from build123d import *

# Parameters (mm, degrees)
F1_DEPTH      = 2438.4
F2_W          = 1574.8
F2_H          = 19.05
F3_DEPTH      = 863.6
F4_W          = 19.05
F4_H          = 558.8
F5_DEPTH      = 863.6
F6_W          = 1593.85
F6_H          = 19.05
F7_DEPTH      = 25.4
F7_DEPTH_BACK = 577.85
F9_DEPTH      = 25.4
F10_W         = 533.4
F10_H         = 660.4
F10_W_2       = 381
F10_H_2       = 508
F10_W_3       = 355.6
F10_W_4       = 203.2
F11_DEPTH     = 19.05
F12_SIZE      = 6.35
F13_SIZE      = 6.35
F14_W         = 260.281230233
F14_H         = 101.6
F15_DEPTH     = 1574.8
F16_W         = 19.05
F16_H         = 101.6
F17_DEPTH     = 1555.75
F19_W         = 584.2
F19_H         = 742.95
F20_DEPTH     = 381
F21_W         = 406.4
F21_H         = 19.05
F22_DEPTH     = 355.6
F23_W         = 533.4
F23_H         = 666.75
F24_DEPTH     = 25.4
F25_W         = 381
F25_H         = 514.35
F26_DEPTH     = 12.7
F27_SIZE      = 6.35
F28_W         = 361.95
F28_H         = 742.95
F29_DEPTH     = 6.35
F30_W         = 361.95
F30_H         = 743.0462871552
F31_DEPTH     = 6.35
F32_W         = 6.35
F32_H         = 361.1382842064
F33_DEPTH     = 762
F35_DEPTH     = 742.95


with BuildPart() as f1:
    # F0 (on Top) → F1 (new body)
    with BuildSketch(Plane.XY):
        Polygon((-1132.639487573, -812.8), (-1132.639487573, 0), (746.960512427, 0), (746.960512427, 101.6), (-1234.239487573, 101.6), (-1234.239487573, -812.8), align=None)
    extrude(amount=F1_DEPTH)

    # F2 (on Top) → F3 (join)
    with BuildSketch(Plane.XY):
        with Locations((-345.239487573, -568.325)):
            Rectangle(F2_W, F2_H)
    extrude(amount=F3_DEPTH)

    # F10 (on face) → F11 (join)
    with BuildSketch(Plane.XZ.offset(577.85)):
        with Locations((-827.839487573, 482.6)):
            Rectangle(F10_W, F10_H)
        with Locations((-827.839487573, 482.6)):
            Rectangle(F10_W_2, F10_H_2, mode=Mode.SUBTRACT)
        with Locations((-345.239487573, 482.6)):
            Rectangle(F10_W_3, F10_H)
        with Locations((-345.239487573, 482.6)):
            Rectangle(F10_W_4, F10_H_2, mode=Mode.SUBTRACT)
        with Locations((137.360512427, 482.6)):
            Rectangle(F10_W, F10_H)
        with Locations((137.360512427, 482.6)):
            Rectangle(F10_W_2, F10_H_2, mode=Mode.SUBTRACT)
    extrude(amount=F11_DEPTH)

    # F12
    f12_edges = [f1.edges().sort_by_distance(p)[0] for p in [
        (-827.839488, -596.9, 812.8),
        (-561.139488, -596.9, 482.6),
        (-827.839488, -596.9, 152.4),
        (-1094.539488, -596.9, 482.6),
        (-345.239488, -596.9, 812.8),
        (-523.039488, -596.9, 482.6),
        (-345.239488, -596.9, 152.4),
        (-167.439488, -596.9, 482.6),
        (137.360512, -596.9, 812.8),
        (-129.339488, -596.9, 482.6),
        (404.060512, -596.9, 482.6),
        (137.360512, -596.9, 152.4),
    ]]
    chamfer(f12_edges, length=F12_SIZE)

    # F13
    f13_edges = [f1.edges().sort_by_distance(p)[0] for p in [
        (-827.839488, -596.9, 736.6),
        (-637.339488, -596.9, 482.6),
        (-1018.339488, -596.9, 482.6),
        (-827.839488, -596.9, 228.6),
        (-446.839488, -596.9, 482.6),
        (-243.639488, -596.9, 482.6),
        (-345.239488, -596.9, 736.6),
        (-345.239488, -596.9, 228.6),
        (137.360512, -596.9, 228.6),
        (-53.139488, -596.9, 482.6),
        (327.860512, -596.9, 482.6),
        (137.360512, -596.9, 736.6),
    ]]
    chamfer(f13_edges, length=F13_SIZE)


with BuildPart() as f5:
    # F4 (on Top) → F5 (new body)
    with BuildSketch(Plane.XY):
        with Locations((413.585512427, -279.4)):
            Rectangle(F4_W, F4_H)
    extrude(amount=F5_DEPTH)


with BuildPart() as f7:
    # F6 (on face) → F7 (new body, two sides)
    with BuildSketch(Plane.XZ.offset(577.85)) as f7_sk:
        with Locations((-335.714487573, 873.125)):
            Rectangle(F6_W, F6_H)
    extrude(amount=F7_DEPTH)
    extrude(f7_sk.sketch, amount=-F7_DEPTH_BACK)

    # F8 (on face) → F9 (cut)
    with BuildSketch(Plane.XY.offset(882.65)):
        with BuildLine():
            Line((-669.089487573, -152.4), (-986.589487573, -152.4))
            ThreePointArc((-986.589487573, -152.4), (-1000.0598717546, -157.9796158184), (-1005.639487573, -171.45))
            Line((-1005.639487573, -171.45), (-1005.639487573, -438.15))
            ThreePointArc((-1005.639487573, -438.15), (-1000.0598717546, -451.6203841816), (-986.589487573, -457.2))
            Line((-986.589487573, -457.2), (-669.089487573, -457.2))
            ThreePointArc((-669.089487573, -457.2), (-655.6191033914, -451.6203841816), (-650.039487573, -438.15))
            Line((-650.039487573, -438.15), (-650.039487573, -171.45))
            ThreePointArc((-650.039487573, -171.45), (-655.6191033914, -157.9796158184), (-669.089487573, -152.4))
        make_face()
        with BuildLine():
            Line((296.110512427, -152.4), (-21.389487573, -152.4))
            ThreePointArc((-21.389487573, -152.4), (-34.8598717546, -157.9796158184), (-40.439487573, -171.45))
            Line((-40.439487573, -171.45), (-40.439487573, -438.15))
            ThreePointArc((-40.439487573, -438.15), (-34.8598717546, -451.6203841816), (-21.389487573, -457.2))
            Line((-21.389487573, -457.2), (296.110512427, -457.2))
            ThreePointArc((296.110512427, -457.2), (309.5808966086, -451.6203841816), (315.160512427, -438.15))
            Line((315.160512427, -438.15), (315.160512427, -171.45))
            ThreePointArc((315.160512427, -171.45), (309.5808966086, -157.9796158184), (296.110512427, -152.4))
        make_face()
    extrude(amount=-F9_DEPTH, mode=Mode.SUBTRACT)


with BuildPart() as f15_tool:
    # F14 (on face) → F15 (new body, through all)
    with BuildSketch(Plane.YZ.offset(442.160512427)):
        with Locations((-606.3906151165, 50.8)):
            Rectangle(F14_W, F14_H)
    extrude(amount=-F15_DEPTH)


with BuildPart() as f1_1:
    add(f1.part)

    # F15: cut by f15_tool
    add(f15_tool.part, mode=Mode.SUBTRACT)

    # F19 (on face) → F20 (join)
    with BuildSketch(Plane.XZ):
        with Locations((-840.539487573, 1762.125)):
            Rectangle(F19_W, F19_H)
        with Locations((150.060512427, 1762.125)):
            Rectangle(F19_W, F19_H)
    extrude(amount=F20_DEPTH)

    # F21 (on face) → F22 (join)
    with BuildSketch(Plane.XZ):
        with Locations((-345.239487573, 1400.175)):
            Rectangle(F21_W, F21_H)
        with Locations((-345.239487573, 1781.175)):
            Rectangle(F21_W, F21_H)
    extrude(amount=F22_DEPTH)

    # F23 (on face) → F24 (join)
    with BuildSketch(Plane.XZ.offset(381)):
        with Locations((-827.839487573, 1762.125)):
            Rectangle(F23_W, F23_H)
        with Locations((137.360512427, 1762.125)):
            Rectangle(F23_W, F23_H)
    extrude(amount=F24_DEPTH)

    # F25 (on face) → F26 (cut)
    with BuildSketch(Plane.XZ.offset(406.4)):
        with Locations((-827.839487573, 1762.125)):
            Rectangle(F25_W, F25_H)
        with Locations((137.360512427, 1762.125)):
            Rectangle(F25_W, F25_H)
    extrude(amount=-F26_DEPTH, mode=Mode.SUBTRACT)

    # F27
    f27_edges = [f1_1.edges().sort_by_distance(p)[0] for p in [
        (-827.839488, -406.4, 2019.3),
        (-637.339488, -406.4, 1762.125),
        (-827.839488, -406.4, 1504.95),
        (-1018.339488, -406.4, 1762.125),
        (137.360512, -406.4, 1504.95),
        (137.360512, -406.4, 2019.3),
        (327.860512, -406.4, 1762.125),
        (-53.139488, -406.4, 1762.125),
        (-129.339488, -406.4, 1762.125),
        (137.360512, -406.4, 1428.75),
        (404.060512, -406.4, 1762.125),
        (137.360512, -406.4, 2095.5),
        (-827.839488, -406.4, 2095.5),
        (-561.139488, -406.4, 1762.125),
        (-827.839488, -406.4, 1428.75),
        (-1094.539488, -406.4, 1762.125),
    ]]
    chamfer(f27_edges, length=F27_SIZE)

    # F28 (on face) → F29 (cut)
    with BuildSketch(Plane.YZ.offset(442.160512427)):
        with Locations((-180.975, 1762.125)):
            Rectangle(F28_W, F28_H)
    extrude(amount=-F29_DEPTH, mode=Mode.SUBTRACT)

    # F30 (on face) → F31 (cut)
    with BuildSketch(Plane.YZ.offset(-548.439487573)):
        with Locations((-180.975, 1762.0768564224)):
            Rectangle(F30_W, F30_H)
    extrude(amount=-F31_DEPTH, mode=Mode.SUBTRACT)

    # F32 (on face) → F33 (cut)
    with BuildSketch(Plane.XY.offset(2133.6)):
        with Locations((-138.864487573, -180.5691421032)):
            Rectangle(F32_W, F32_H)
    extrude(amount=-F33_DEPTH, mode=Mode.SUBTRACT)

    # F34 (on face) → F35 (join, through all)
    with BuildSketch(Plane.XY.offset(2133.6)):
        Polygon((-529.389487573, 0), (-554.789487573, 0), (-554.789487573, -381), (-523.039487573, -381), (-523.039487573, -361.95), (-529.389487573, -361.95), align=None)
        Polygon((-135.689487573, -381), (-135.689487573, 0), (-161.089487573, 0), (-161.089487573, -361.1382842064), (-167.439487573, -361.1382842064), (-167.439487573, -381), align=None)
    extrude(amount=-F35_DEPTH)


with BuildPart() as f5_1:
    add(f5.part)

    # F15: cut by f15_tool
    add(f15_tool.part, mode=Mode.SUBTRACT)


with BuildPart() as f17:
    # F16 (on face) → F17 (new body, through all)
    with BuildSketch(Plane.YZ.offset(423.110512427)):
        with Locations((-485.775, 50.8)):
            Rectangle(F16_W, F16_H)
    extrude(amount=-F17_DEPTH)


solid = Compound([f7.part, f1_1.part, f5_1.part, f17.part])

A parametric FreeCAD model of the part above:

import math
import FreeCAD as App
import Part
import Sketcher
Q = App.Units.Quantity


def edges_at(feature, points):
    """Names of the edges that pass closest to the given points."""
    edges = feature.Shape.Edges
    near = lambda p: min(range(len(edges)), key=lambda i: edges[i].distToShape(Part.Vertex(*p))[0])
    return sorted({f"Edge{near(p) + 1}" for p in points})

doc = App.newDocument("Part")
body = doc.addObject("PartDesign::Body", "Body")

# Sketch on XY plane
sketch1 = body.newObject("Sketcher::SketchObject", "Sketch")
sketch1.AttachmentSupport = (doc.getObject("XY_Plane"), [""])
sketch1.MapMode = "FlatFace"
sketch1.addGeometry(Part.LineSegment(App.Vector(-1132.639488, -812.8, 0), App.Vector(-1132.639488, 0, 0)), False)
sketch1.addGeometry(Part.LineSegment(App.Vector(-1132.639488, 0, 0), App.Vector(746.960512, 0, 0)), False)
sketch1.addGeometry(Part.LineSegment(App.Vector(746.960512, 0, 0), App.Vector(746.960512, 101.6, 0)), False)
sketch1.addGeometry(Part.LineSegment(App.Vector(746.960512, 101.6, 0), App.Vector(-1234.239488, 101.6, 0)), False)
sketch1.addGeometry(Part.LineSegment(App.Vector(-1234.239488, 101.6, 0), App.Vector(-1234.239488, -812.8, 0)), False)
sketch1.addGeometry(Part.LineSegment(App.Vector(-1234.239488, -812.8, 0), App.Vector(-1132.639488, -812.8, 0)), False)
sketch1.addConstraint(Sketcher.Constraint("Coincident", 0, 2, 1, 1))
sketch1.addConstraint(Sketcher.Constraint("Coincident", 1, 2, 2, 1))
sketch1.addConstraint(Sketcher.Constraint("Coincident", 2, 2, 3, 1))
sketch1.addConstraint(Sketcher.Constraint("Coincident", 3, 2, 4, 1))
sketch1.addConstraint(Sketcher.Constraint("Coincident", 4, 2, 5, 1))
sketch1.addConstraint(Sketcher.Constraint("Coincident", 5, 2, 0, 1))
sketch1.addConstraint(Sketcher.Constraint("Vertical", 0))
sketch1.addConstraint(Sketcher.Constraint("Horizontal", 1))
sketch1.addConstraint(Sketcher.Constraint("Vertical", 2))
sketch1.addConstraint(Sketcher.Constraint("Horizontal", 3))
sketch1.addConstraint(Sketcher.Constraint("Vertical", 4))
sketch1.addConstraint(Sketcher.Constraint("Horizontal", 5))
sketch1.addConstraint(Sketcher.Constraint("PointOnObject", 0, 2, -1))
sketch1.addConstraint(Sketcher.Constraint("Equal", 5, 2))
sketch1.addConstraint(Sketcher.Constraint("DistanceX", 1, 1, 1, 2, Q("74 in")))
sketch1.addConstraint(Sketcher.Constraint("DistanceX", 3, 2, 3, 1, Q("78 in")))
sketch1.addConstraint(Sketcher.Constraint("DistanceY", 0, 1, 0, 2, Q("32 in")))
sketch1.addConstraint(Sketcher.Constraint("DistanceX", 0, 2, -1, 1, 1132.639488))
pad1 = body.newObject("PartDesign::Pad", "Pad")
pad1.Profile = sketch1
pad1.Length = Q("96 in")

# Sketch on XY plane
sketch2 = body.newObject("Sketcher::SketchObject", "Sketch001")
sketch2.AttachmentSupport = (doc.getObject("XY_Plane"), [""])
sketch2.MapMode = "FlatFace"
sketch2.addGeometry(Part.LineSegment(App.Vector(-1132.639488, -558.8, 0), App.Vector(-1132.639488, -577.85, 0)), False)
sketch2.addGeometry(Part.LineSegment(App.Vector(-1132.639488, -577.85, 0), App.Vector(442.160512, -577.85, 0)), False)
sketch2.addGeometry(Part.LineSegment(App.Vector(442.160512, -577.85, 0), App.Vector(442.160512, -558.8, 0)), False)
sketch2.addGeometry(Part.LineSegment(App.Vector(442.160512, -558.8, 0), App.Vector(-1132.639488, -558.8, 0)), False)
sketch2.addConstraint(Sketcher.Constraint("Coincident", 0, 2, 1, 1))
sketch2.addConstraint(Sketcher.Constraint("Coincident", 1, 2, 2, 1))
sketch2.addConstraint(Sketcher.Constraint("Coincident", 2, 2, 3, 1))
sketch2.addConstraint(Sketcher.Constraint("Coincident", 3, 2, 0, 1))
sketch2.addConstraint(Sketcher.Constraint("Vertical", 0))
sketch2.addConstraint(Sketcher.Constraint("Horizontal", 1))
sketch2.addConstraint(Sketcher.Constraint("Vertical", 2))
sketch2.addConstraint(Sketcher.Constraint("Horizontal", 3))
sketch2.addConstraint(Sketcher.Constraint("DistanceX", 1, 1, 1, 2, Q("62 in")))
sketch2.addConstraint(Sketcher.Constraint("DistanceY", 2, 2, -1, 1, Q("22 in")))
sketch2.addConstraint(Sketcher.Constraint("DistanceY", 0, 2, 0, 1, Q("0.75 in")))
sketch2.addConstraint(Sketcher.Constraint("DistanceX", 0, 2, -1, 1, 1132.639488))
pad2 = body.newObject("PartDesign::Pad", "Pad001")
pad2.Profile = sketch2
pad2.Length = Q("34 in")

# Sketch on XZ plane
sketch3 = body.newObject("Sketcher::SketchObject", "Sketch002")
sketch3.AttachmentSupport = (doc.getObject("XZ_Plane"), [""])
sketch3.MapMode = "FlatFace"
sketch3.AttachmentOffset = App.Placement(App.Vector(0, 0, 22.75 * 25.4), App.Rotation())
sketch3.addGeometry(Part.LineSegment(App.Vector(-1094.539488, 812.8, 0), App.Vector(-1094.539488, 152.4, 0)), False)
sketch3.addGeometry(Part.LineSegment(App.Vector(-1094.539488, 152.4, 0), App.Vector(-561.139488, 152.4, 0)), False)
sketch3.addGeometry(Part.LineSegment(App.Vector(-561.139488, 152.4, 0), App.Vector(-561.139488, 812.8, 0)), False)
sketch3.addGeometry(Part.LineSegment(App.Vector(-561.139488, 812.8, 0), App.Vector(-1094.539488, 812.8, 0)), False)
sketch3.addGeometry(Part.LineSegment(App.Vector(-637.339488, 228.6, 0), App.Vector(-1018.339488, 228.6, 0)), False)
sketch3.addGeometry(Part.LineSegment(App.Vector(-1018.339488, 228.6, 0), App.Vector(-1018.339488, 736.6, 0)), False)
sketch3.addGeometry(Part.LineSegment(App.Vector(-1018.339488, 736.6, 0), App.Vector(-637.339488, 736.6, 0)), False)
sketch3.addGeometry(Part.LineSegment(App.Vector(-637.339488, 736.6, 0), App.Vector(-637.339488, 228.6, 0)), False)
sketch3.addGeometry(Part.LineSegment(App.Vector(-523.039488, 812.8, 0), App.Vector(-523.039488, 152.4, 0)), False)
sketch3.addGeometry(Part.LineSegment(App.Vector(-523.039488, 152.4, 0), App.Vector(-167.439488, 152.4, 0)), False)
sketch3.addGeometry(Part.LineSegment(App.Vector(-167.439488, 152.4, 0), App.Vector(-167.439488, 812.8, 0)), False)
sketch3.addGeometry(Part.LineSegment(App.Vector(-167.439488, 812.8, 0), App.Vector(-523.039488, 812.8, 0)), False)
sketch3.addGeometry(Part.LineSegment(App.Vector(-243.639488, 228.6, 0), App.Vector(-446.839488, 228.6, 0)), False)
sketch3.addGeometry(Part.LineSegment(App.Vector(-446.839488, 228.6, 0), App.Vector(-446.839488, 736.6, 0)), False)
sketch3.addGeometry(Part.LineSegment(App.Vector(-446.839488, 736.6, 0), App.Vector(-243.639488, 736.6, 0)), False)
sketch3.addGeometry(Part.LineSegment(App.Vector(-243.639488, 736.6, 0), App.Vector(-243.639488, 228.6, 0)), False)
sketch3.addGeometry(Part.LineSegment(App.Vector(-129.339488, 812.8, 0), App.Vector(-129.339488, 152.4, 0)), False)
sketch3.addGeometry(Part.LineSegment(App.Vector(-129.339488, 152.4, 0), App.Vector(404.060512, 152.4, 0)), False)
sketch3.addGeometry(Part.LineSegment(App.Vector(404.060512, 152.4, 0), App.Vector(404.060512, 812.8, 0)), False)
sketch3.addGeometry(Part.LineSegment(App.Vector(404.060512, 812.8, 0), App.Vector(-129.339488, 812.8, 0)), False)
sketch3.addGeometry(Part.LineSegment(App.Vector(327.860512, 228.6, 0), App.Vector(-53.139488, 228.6, 0)), False)
sketch3.addGeometry(Part.LineSegment(App.Vector(-53.139488, 228.6, 0), App.Vector(-53.139488, 736.6, 0)), False)
sketch3.addGeometry(Part.LineSegment(App.Vector(-53.139488, 736.6, 0), App.Vector(327.860512, 736.6, 0)), False)
sketch3.addGeometry(Part.LineSegment(App.Vector(327.860512, 736.6, 0), App.Vector(327.860512, 228.6, 0)), False)
sketch3.addConstraint(Sketcher.Constraint("Coincident", 0, 2, 1, 1))
sketch3.addConstraint(Sketcher.Constraint("Coincident", 1, 2, 2, 1))
sketch3.addConstraint(Sketcher.Constraint("Coincident", 2, 2, 3, 1))
sketch3.addConstraint(Sketcher.Constraint("Coincident", 3, 2, 0, 1))
sketch3.addConstraint(Sketcher.Constraint("Coincident", 4, 2, 5, 1))
sketch3.addConstraint(Sketcher.Constraint("Coincident", 5, 2, 6, 1))
sketch3.addConstraint(Sketcher.Constraint("Coincident", 6, 2, 7, 1))
sketch3.addConstraint(Sketcher.Constraint("Coincident", 7, 2, 4, 1))
sketch3.addConstraint(Sketcher.Constraint("Coincident", 8, 2, 9, 1))
sketch3.addConstraint(Sketcher.Constraint("Coincident", 9, 2, 10, 1))
sketch3.addConstraint(Sketcher.Constraint("Coincident", 10, 2, 11, 1))
sketch3.addConstraint(Sketcher.Constraint("Coincident", 11, 2, 8, 1))
sketch3.addConstraint(Sketcher.Constraint("Coincident", 12, 2, 13, 1))
sketch3.addConstraint(Sketcher.Constraint("Coincident", 13, 2, 14, 1))
sketch3.addConstraint(Sketcher.Constraint("Coincident", 14, 2, 15, 1))
sketch3.addConstraint(Sketcher.Constraint("Coincident", 15, 2, 12, 1))
sketch3.addConstraint(Sketcher.Constraint("Coincident", 16, 2, 17, 1))
sketch3.addConstraint(Sketcher.Constraint("Coincident", 17, 2, 18, 1))
sketch3.addConstraint(Sketcher.Constraint("Coincident", 18, 2, 19, 1))
sketch3.addConstraint(Sketcher.Constraint("Coincident", 19, 2, 16, 1))
sketch3.addConstraint(Sketcher.Constraint("Coincident", 20, 2, 21, 1))
sketch3.addConstraint(Sketcher.Constraint("Coincident", 21, 2, 22, 1))
sketch3.addConstraint(Sketcher.Constraint("Coincident", 22, 2, 23, 1))
sketch3.addConstraint(Sketcher.Constraint("Coincident", 23, 2, 20, 1))
sketch3.addConstraint(Sketcher.Constraint("Vertical", 0))
sketch3.addConstraint(Sketcher.Constraint("Horizontal", 1))
sketch3.addConstraint(Sketcher.Constraint("Vertical", 2))
sketch3.addConstraint(Sketcher.Constraint("Horizontal", 3))
sketch3.addConstraint(Sketcher.Constraint("Horizontal", 4))
sketch3.addConstraint(Sketcher.Constraint("Vertical", 5))
sketch3.addConstraint(Sketcher.Constraint("Horizontal", 6))
sketch3.addConstraint(Sketcher.Constraint("Vertical", 7))
sketch3.addConstraint(Sketcher.Constraint("Vertical", 8))
sketch3.addConstraint(Sketcher.Constraint("Horizontal", 9))
sketch3.addConstraint(Sketcher.Constraint("Vertical", 10))
sketch3.addConstraint(Sketcher.Constraint("Horizontal", 11))
sketch3.addConstraint(Sketcher.Constraint("Horizontal", 12))
sketch3.addConstraint(Sketcher.Constraint("Vertical", 13))
sketch3.addConstraint(Sketcher.Constraint("Horizontal", 14))
sketch3.addConstraint(Sketcher.Constraint("Vertical", 15))
sketch3.addConstraint(Sketcher.Constraint("Vertical", 16))
sketch3.addConstraint(Sketcher.Constraint("Horizontal", 17))
sketch3.addConstraint(Sketcher.Constraint("Vertical", 18))
sketch3.addConstraint(Sketcher.Constraint("Horizontal", 19))
sketch3.addConstraint(Sketcher.Constraint("Horizontal", 20))
sketch3.addConstraint(Sketcher.Constraint("Vertical", 21))
sketch3.addConstraint(Sketcher.Constraint("Horizontal", 22))
sketch3.addConstraint(Sketcher.Constraint("Vertical", 23))
sketch3.addConstraint(Sketcher.Constraint("Horizontal", 1, 2, 8, 2))
sketch3.addConstraint(Sketcher.Constraint("Horizontal", 3, 2, 10, 2))
sketch3.addConstraint(Sketcher.Constraint("Horizontal", 7, 2, 12, 2))
sketch3.addConstraint(Sketcher.Constraint("Horizontal", 6, 2, 13, 2))
sketch3.addConstraint(Sketcher.Constraint("Horizontal", 9, 2, 16, 2))
sketch3.addConstraint(Sketcher.Constraint("Horizontal", 11, 2, 18, 2))
sketch3.addConstraint(Sketcher.Constraint("Horizontal", 15, 2, 20, 2))
sketch3.addConstraint(Sketcher.Constraint("Horizontal", 14, 2, 21, 2))
sketch3.addConstraint(Sketcher.Constraint("Equal", 3, 17))
sketch3.addConstraint(Sketcher.Constraint("Equal", 6, 20))
sketch3.addConstraint(Sketcher.Constraint("DistanceX", 1, 1, 1, 2, Q("21 in")))
sketch3.addConstraint(Sketcher.Constraint("DistanceX", 4, 2, 4, 1, Q("15 in")))
sketch3.addConstraint(Sketcher.Constraint("DistanceX", 9, 1, 9, 2, Q("14 in")))
sketch3.addConstraint(Sketcher.Constraint("DistanceX", 12, 2, 12, 1, Q("8 in")))
sketch3.addConstraint(Sketcher.Constraint("DistanceY", 0, 2, 0, 1, Q("26 in")))
sketch3.addConstraint(Sketcher.Constraint("DistanceY", 5, 1, 5, 2, Q("20 in")))
sketch3.addConstraint(Sketcher.Constraint("DistanceY", -1, 1, 0, 2, Q("6 in")))
sketch3.addConstraint(Sketcher.Constraint("DistanceY", -1, 1, 4, 2, Q("9 in")))
sketch3.addConstraint(Sketcher.Constraint("DistanceX", 0, 2, 4, 2, Q("3 in")))
sketch3.addConstraint(Sketcher.Constraint("DistanceX", 8, 2, 12, 2, Q("3 in")))
sketch3.addConstraint(Sketcher.Constraint("DistanceX", 1, 2, 16, 2, Q("17 in")))
sketch3.addConstraint(Sketcher.Constraint("DistanceX", 16, 2, 20, 2, Q("3 in")))
sketch3.addConstraint(Sketcher.Constraint("DistanceX", 1, 2, 8, 2, Q("1.5 in")))
sketch3.addConstraint(Sketcher.Constraint("DistanceX", 0, 2, -1, 1, 1094.539488))
pad3 = body.newObject("PartDesign::Pad", "Pad002")
pad3.Profile = sketch3
pad3.Length = Q("0.75 in")
doc.recompute()

chamfer = body.newObject("PartDesign::Chamfer", "Chamfer")
chamfer.Base = (pad3, edges_at(pad3, [
    (-827.839, -596.9, 812.8),
    (-561.139, -596.9, 482.6),
    (-827.839, -596.9, 152.4),
    (-1094.539, -596.9, 482.6),
    (-345.239, -596.9, 812.8),
    (-523.039, -596.9, 482.6),
    (-345.239, -596.9, 152.4),
    (-167.439, -596.9, 482.6),
    (137.361, -596.9, 812.8),
    (-129.339, -596.9, 482.6),
    (404.061, -596.9, 482.6),
    (137.361, -596.9, 152.4),
]))
chamfer.Size = Q("0.25 in")
doc.recompute()

chamfer2 = body.newObject("PartDesign::Chamfer", "Chamfer001")
chamfer2.Base = (chamfer, edges_at(chamfer, [
    (-827.839, -596.9, 736.6),
    (-637.339, -596.9, 482.6),
    (-1018.339, -596.9, 482.6),
    (-827.839, -596.9, 228.6),
    (-446.839, -596.9, 482.6),
    (-243.639, -596.9, 482.6),
    (-345.239, -596.9, 736.6),
    (-345.239, -596.9, 228.6),
    (137.361, -596.9, 228.6),
    (-53.139, -596.9, 482.6),
    (327.861, -596.9, 482.6),
    (137.361, -596.9, 736.6),
]))
chamfer2.Size = Q("0.25 in")
body2 = doc.addObject("PartDesign::Body", "Body001")

# Sketch on XY plane
sketch4 = body2.newObject("Sketcher::SketchObject", "Sketch003")
sketch4.AttachmentSupport = (doc.getObject("XY_Plane001"), [""])
sketch4.MapMode = "FlatFace"
sketch4.addGeometry(Part.LineSegment(App.Vector(404.060512, 0, 0), App.Vector(404.060512, -558.8, 0)), False)
sketch4.addGeometry(Part.LineSegment(App.Vector(404.060512, -558.8, 0), App.Vector(423.110512, -558.8, 0)), False)
sketch4.addGeometry(Part.LineSegment(App.Vector(423.110512, -558.8, 0), App.Vector(423.110512, 0, 0)), False)
sketch4.addGeometry(Part.LineSegment(App.Vector(423.110512, 0, 0), App.Vector(404.060512, 0, 0)), False)
sketch4.addConstraint(Sketcher.Constraint("Coincident", 0, 2, 1, 1))
sketch4.addConstraint(Sketcher.Constraint("Coincident", 1, 2, 2, 1))
sketch4.addConstraint(Sketcher.Constraint("Coincident", 2, 2, 3, 1))
sketch4.addConstraint(Sketcher.Constraint("Coincident", 3, 2, 0, 1))
sketch4.addConstraint(Sketcher.Constraint("Vertical", 0))
sketch4.addConstraint(Sketcher.Constraint("Horizontal", 1))
sketch4.addConstraint(Sketcher.Constraint("Vertical", 2))
sketch4.addConstraint(Sketcher.Constraint("Horizontal", 3))
sketch4.addConstraint(Sketcher.Constraint("PointOnObject", 2, 2, -1))
sketch4.addConstraint(Sketcher.Constraint("DistanceY", 0, 2, 0, 1, Q("22 in")))
sketch4.addConstraint(Sketcher.Constraint("DistanceX", 1, 1, 1, 2, Q("0.75 in")))
sketch4.addConstraint(Sketcher.Constraint("DistanceX", -1, 1, 0, 2, 404.060512))
pad4 = body2.newObject("PartDesign::Pad", "Pad003")
pad4.Profile = sketch4
pad4.Length = Q("34 in")
body3 = doc.addObject("PartDesign::Body", "Body002")

# Sketch on XZ plane
sketch5 = body3.newObject("Sketcher::SketchObject", "Sketch004")
sketch5.AttachmentSupport = (doc.getObject("XZ_Plane002"), [""])
sketch5.MapMode = "FlatFace"
sketch5.AttachmentOffset = App.Placement(App.Vector(0, 0, 22.75 * 25.4), App.Rotation())
sketch5.addGeometry(Part.LineSegment(App.Vector(-1132.639488, 882.65, 0), App.Vector(-1132.639488, 863.6, 0)), False)
sketch5.addGeometry(Part.LineSegment(App.Vector(-1132.639488, 863.6, 0), App.Vector(461.210512, 863.6, 0)), False)
sketch5.addGeometry(Part.LineSegment(App.Vector(461.210512, 863.6, 0), App.Vector(461.210512, 882.65, 0)), False)
sketch5.addGeometry(Part.LineSegment(App.Vector(461.210512, 882.65, 0), App.Vector(-1132.639488, 882.65, 0)), False)
sketch5.addConstraint(Sketcher.Constraint("Coincident", 0, 2, 1, 1))
sketch5.addConstraint(Sketcher.Constraint("Coincident", 1, 2, 2, 1))
sketch5.addConstraint(Sketcher.Constraint("Coincident", 2, 2, 3, 1))
sketch5.addConstraint(Sketcher.Constraint("Coincident", 3, 2, 0, 1))
sketch5.addConstraint(Sketcher.Constraint("Vertical", 0))
sketch5.addConstraint(Sketcher.Constraint("Horizontal", 1))
sketch5.addConstraint(Sketcher.Constraint("Vertical", 2))
sketch5.addConstraint(Sketcher.Constraint("Horizontal", 3))
sketch5.addConstraint(Sketcher.Constraint("DistanceY", -1, 1, 0, 2, Q("34 in")))
sketch5.addConstraint(Sketcher.Constraint("DistanceX", 1, 1, 1, 2, Q("62.75 in")))
sketch5.addConstraint(Sketcher.Constraint("DistanceY", 0, 2, 0, 1, Q("0.75 in")))
sketch5.addConstraint(Sketcher.Constraint("DistanceX", 0, 2, -1, 1, 1132.639488))
pad5 = body3.newObject("PartDesign::Pad", "Pad004")
pad5.Profile = sketch5
pad5.Type = "TwoLengths"
pad5.Length = Q("1 in")
pad5.Length2 = Q("22.75 in")

# Sketch on XY plane
sketch6 = body3.newObject("Sketcher::SketchObject", "Sketch005")
sketch6.AttachmentSupport = (doc.getObject("XY_Plane002"), [""])
sketch6.MapMode = "FlatFace"
sketch6.AttachmentOffset = App.Placement(App.Vector(0, 0, 34.75 * 25.4), App.Rotation())
sketch6.addGeometry(Part.LineSegment(App.Vector(-669.089488, -152.4, 0), App.Vector(-986.589488, -152.4, 0)), False)
sketch6.addGeometry(Part.ArcOfCircle(Part.Circle(App.Vector(-986.589488, -171.45, 0), App.Vector(0, 0, 1), 19.05), math.radians(90), math.radians(180)), False)
sketch6.addGeometry(Part.LineSegment(App.Vector(-1005.639488, -171.45, 0), App.Vector(-1005.639488, -438.15, 0)), False)
sketch6.addGeometry(Part.ArcOfCircle(Part.Circle(App.Vector(-986.589488, -438.15, 0), App.Vector(0, 0, 1), 19.05), math.radians(180), math.radians(270)), False)
sketch6.addGeometry(Part.LineSegment(App.Vector(-986.589488, -457.2, 0), App.Vector(-669.089488, -457.2, 0)), False)
sketch6.addGeometry(Part.ArcOfCircle(Part.Circle(App.Vector(-669.089488, -438.15, 0), App.Vector(0, 0, 1), 19.05), math.radians(-90), math.radians(0)), False)
sketch6.addGeometry(Part.LineSegment(App.Vector(-650.039488, -438.15, 0), App.Vector(-650.039488, -171.45, 0)), False)
sketch6.addGeometry(Part.ArcOfCircle(Part.Circle(App.Vector(-669.089488, -171.45, 0), App.Vector(0, 0, 1), 19.05), math.radians(0), math.radians(90)), False)
sketch6.addGeometry(Part.LineSegment(App.Vector(296.110512, -152.4, 0), App.Vector(-21.389488, -152.4, 0)), False)
sketch6.addGeometry(Part.ArcOfCircle(Part.Circle(App.Vector(-21.389488, -171.45, 0), App.Vector(0, 0, 1), 19.05), math.radians(90), math.radians(180)), False)
sketch6.addGeometry(Part.LineSegment(App.Vector(-40.439488, -171.45, 0), App.Vector(-40.439488, -438.15, 0)), False)
sketch6.addGeometry(Part.ArcOfCircle(Part.Circle(App.Vector(-21.389488, -438.15, 0), App.Vector(0, 0, 1), 19.05), math.radians(180), math.radians(270)), False)
sketch6.addGeometry(Part.LineSegment(App.Vector(-21.389488, -457.2, 0), App.Vector(296.110512, -457.2, 0)), False)
sketch6.addGeometry(Part.ArcOfCircle(Part.Circle(App.Vector(296.110512, -438.15, 0), App.Vector(0, 0, 1), 19.05), math.radians(-90), math.radians(0)), False)
sketch6.addGeometry(Part.LineSegment(App.Vector(315.160512, -438.15, 0), App.Vector(315.160512, -171.45, 0)), False)
sketch6.addGeometry(Part.ArcOfCircle(Part.Circle(App.Vector(296.110512, -171.45, 0), App.Vector(0, 0, 1), 19.05), math.radians(0), math.radians(90)), False)
sketch6.addConstraint(Sketcher.Constraint("Tangent", 0, 2, 1, 1))
sketch6.addConstraint(Sketcher.Constraint("Tangent", 1, 2, 2, 1))
sketch6.addConstraint(Sketcher.Constraint("Tangent", 2, 2, 3, 1))
sketch6.addConstraint(Sketcher.Constraint("Tangent", 3, 2, 4, 1))
sketch6.addConstraint(Sketcher.Constraint("Tangent", 4, 2, 5, 1))
sketch6.addConstraint(Sketcher.Constraint("Tangent", 5, 2, 6, 1))
sketch6.addConstraint(Sketcher.Constraint("Tangent", 6, 2, 7, 1))
sketch6.addConstraint(Sketcher.Constraint("Tangent", 7, 2, 0, 1))
sketch6.addConstraint(Sketcher.Constraint("Tangent", 8, 2, 9, 1))
sketch6.addConstraint(Sketcher.Constraint("Tangent", 9, 2, 10, 1))
sketch6.addConstraint(Sketcher.Constraint("Tangent", 10, 2, 11, 1))
sketch6.addConstraint(Sketcher.Constraint("Tangent", 11, 2, 12, 1))
sketch6.addConstraint(Sketcher.Constraint("Tangent", 12, 2, 13, 1))
sketch6.addConstraint(Sketcher.Constraint("Tangent", 13, 2, 14, 1))
sketch6.addConstraint(Sketcher.Constraint("Tangent", 14, 2, 15, 1))
sketch6.addConstraint(Sketcher.Constraint("Tangent", 15, 2, 8, 1))
sketch6.addConstraint(Sketcher.Constraint("Horizontal", 0))
sketch6.addConstraint(Sketcher.Constraint("Vertical", 2))
sketch6.addConstraint(Sketcher.Constraint("Horizontal", 4))
sketch6.addConstraint(Sketcher.Constraint("Vertical", 6))
sketch6.addConstraint(Sketcher.Constraint("Horizontal", 8))
sketch6.addConstraint(Sketcher.Constraint("Vertical", 10))
sketch6.addConstraint(Sketcher.Constraint("Horizontal", 12))
sketch6.addConstraint(Sketcher.Constraint("Vertical", 14))
sketch6.addConstraint(Sketcher.Constraint("Equal", 1, 3))
sketch6.addConstraint(Sketcher.Constraint("Equal", 3, 5))
sketch6.addConstraint(Sketcher.Constraint("Equal", 5, 7))
sketch6.addConstraint(Sketcher.Constraint("Equal", 7, 9))
sketch6.addConstraint(Sketcher.Constraint("Equal", 9, 11))
sketch6.addConstraint(Sketcher.Constraint("Equal", 11, 13))
sketch6.addConstraint(Sketcher.Constraint("Equal", 13, 15))
sketch6.addConstraint(Sketcher.Constraint("Horizontal", 7, 3, 9, 3))
sketch6.addConstraint(Sketcher.Constraint("Horizontal", 5, 3, 11, 3))
sketch6.addConstraint(Sketcher.Constraint("Equal", 4, 8))
sketch6.addConstraint(Sketcher.Constraint("Radius", 1, Q("0.75 in")))
sketch6.addConstraint(Sketcher.Constraint("DistanceX", 0, 2, 0, 1, Q("12.5 in")))
sketch6.addConstraint(Sketcher.Constraint("DistanceY", 2, 2, 2, 1, Q("10.5 in")))
sketch6.addConstraint(Sketcher.Constraint("DistanceY", 0, 2, -1, 1, Q("6 in")))
sketch6.addConstraint(Sketcher.Constraint("DistanceX", 1, 3, 9, 3, Q("38 in")))
sketch6.addConstraint(Sketcher.Constraint("DistanceX", 1, 3, -1, 1, 986.589488))
pocket1 = body3.newObject("PartDesign::Pocket", "Pocket")
pocket1.Profile = sketch6
pocket1.Length = Q("1 in")
body4 = doc.addObject("PartDesign::Body", "Body003")

# Sketch on YZ plane
sketch7 = body4.newObject("Sketcher::SketchObject", "Sketch006")
sketch7.AttachmentSupport = (doc.getObject("YZ_Plane003"), [""])
sketch7.MapMode = "FlatFace"
sketch7.AttachmentOffset = App.Placement(App.Vector(0, 0, 442.160512), App.Rotation())
sketch7.addGeometry(Part.LineSegment(App.Vector(-736.53123, 101.6, 0), App.Vector(-736.53123, 0, 0)), False)
sketch7.addGeometry(Part.LineSegment(App.Vector(-736.53123, 0, 0), App.Vector(-476.25, 0, 0)), False)
sketch7.addGeometry(Part.LineSegment(App.Vector(-476.25, 0, 0), App.Vector(-476.25, 101.6, 0)), False)
sketch7.addGeometry(Part.LineSegment(App.Vector(-476.25, 101.6, 0), App.Vector(-736.53123, 101.6, 0)), False)
sketch7.addConstraint(Sketcher.Constraint("Coincident", 0, 2, 1, 1))
sketch7.addConstraint(Sketcher.Constraint("Coincident", 1, 2, 2, 1))
sketch7.addConstraint(Sketcher.Constraint("Coincident", 2, 2, 3, 1))
sketch7.addConstraint(Sketcher.Constraint("Coincident", 3, 2, 0, 1))
sketch7.addConstraint(Sketcher.Constraint("Vertical", 0))
sketch7.addConstraint(Sketcher.Constraint("Horizontal", 1))
sketch7.addConstraint(Sketcher.Constraint("Vertical", 2))
sketch7.addConstraint(Sketcher.Constraint("Horizontal", 3))
sketch7.addConstraint(Sketcher.Constraint("PointOnObject", 0, 2, -1))
sketch7.addConstraint(Sketcher.Constraint("DistanceY", 0, 2, 0, 1, Q("4 in")))
sketch7.addConstraint(Sketcher.Constraint("DistanceX", 1, 2, -1, 1, Q("18.75 in")))
sketch7.addConstraint(Sketcher.Constraint("DistanceX", 1, 1, 1, 2, 260.28123))
pad6 = body4.newObject("PartDesign::Pad", "Pad005")
pad6.Profile = sketch7
pad6.Length = Q("62 in")
pad6.Reversed = True
doc.recompute()

body5 = doc.addObject("PartDesign::Body", "Body004")
body5.BaseFeature = body4
boolean = body.newObject("PartDesign::Boolean", "Boolean")
boolean.Type = "Cut"
boolean.addObjects([body5])
doc.recompute()

# Sketch on XZ plane
sketch8 = body.newObject("Sketcher::SketchObject", "Sketch007")
sketch8.AttachmentSupport = (doc.getObject("XZ_Plane"), [""])
sketch8.MapMode = "FlatFace"
sketch8.addGeometry(Part.LineSegment(App.Vector(-1132.639488, 2133.6, 0), App.Vector(-1132.639488, 1390.65, 0)), False)
sketch8.addGeometry(Part.LineSegment(App.Vector(-1132.639488, 1390.65, 0), App.Vector(-548.439488, 1390.65, 0)), False)
sketch8.addGeometry(Part.LineSegment(App.Vector(-548.439488, 1390.65, 0), App.Vector(-548.439488, 2133.6, 0)), False)
sketch8.addGeometry(Part.LineSegment(App.Vector(-548.439488, 2133.6, 0), App.Vector(-1132.639488, 2133.6, 0)), False)
sketch8.addGeometry(Part.LineSegment(App.Vector(-142.039488, 2133.6, 0), App.Vector(-142.039488, 1390.65, 0)), False)
sketch8.addGeometry(Part.LineSegment(App.Vector(-142.039488, 1390.65, 0), App.Vector(442.160512, 1390.65, 0)), False)
sketch8.addGeometry(Part.LineSegment(App.Vector(442.160512, 1390.65, 0), App.Vector(442.160512, 2133.6, 0)), False)
sketch8.addGeometry(Part.LineSegment(App.Vector(442.160512, 2133.6, 0), App.Vector(-142.039488, 2133.6, 0)), False)
sketch8.addConstraint(Sketcher.Constraint("Coincident", 0, 2, 1, 1))
sketch8.addConstraint(Sketcher.Constraint("Coincident", 1, 2, 2, 1))
sketch8.addConstraint(Sketcher.Constraint("Coincident", 2, 2, 3, 1))
sketch8.addConstraint(Sketcher.Constraint("Coincident", 3, 2, 0, 1))
sketch8.addConstraint(Sketcher.Constraint("Coincident", 4, 2, 5, 1))
sketch8.addConstraint(Sketcher.Constraint("Coincident", 5, 2, 6, 1))
sketch8.addConstraint(Sketcher.Constraint("Coincident", 6, 2, 7, 1))
sketch8.addConstraint(Sketcher.Constraint("Coincident", 7, 2, 4, 1))
sketch8.addConstraint(Sketcher.Constraint("Vertical", 0))
sketch8.addConstraint(Sketcher.Constraint("Horizontal", 1))
sketch8.addConstraint(Sketcher.Constraint("Vertical", 2))
sketch8.addConstraint(Sketcher.Constraint("Horizontal", 3))
sketch8.addConstraint(Sketcher.Constraint("Vertical", 4))
sketch8.addConstraint(Sketcher.Constraint("Horizontal", 5))
sketch8.addConstraint(Sketcher.Constraint("Vertical", 6))
sketch8.addConstraint(Sketcher.Constraint("Horizontal", 7))
sketch8.addConstraint(Sketcher.Constraint("Horizontal", 1, 2, 4, 2))
sketch8.addConstraint(Sketcher.Constraint("Horizontal", 3, 2, 6, 2))
sketch8.addConstraint(Sketcher.Constraint("Equal", 3, 5))
sketch8.addConstraint(Sketcher.Constraint("DistanceX", 1, 1, 1, 2, Q("23 in")))
sketch8.addConstraint(Sketcher.Constraint("DistanceY", -1, 1, 2, 2, Q("84 in")))
sketch8.addConstraint(Sketcher.Constraint("DistanceX", 1, 2, 4, 2, Q("16 in")))
sketch8.addConstraint(Sketcher.Constraint("DistanceY", 0, 2, 0, 1, Q("29.25 in")))
sketch8.addConstraint(Sketcher.Constraint("DistanceX", 0, 2, -1, 1, 1132.639488))
pad7 = body.newObject("PartDesign::Pad", "Pad006")
pad7.Profile = sketch8
pad7.Length = Q("15 in")

# Sketch on XZ plane
sketch9 = body.newObject("Sketcher::SketchObject", "Sketch008")
sketch9.AttachmentSupport = (doc.getObject("XZ_Plane"), [""])
sketch9.MapMode = "FlatFace"
sketch9.addGeometry(Part.LineSegment(App.Vector(-548.439488, 1409.7, 0), App.Vector(-548.439488, 1390.65, 0)), False)
sketch9.addGeometry(Part.LineSegment(App.Vector(-548.439488, 1390.65, 0), App.Vector(-142.039488, 1390.65, 0)), False)
sketch9.addGeometry(Part.LineSegment(App.Vector(-142.039488, 1390.65, 0), App.Vector(-142.039488, 1409.7, 0)), False)
sketch9.addGeometry(Part.LineSegment(App.Vector(-142.039488, 1409.7, 0), App.Vector(-548.439488, 1409.7, 0)), False)
sketch9.addGeometry(Part.LineSegment(App.Vector(-548.439488, 1790.7, 0), App.Vector(-548.439488, 1771.65, 0)), False)
sketch9.addGeometry(Part.LineSegment(App.Vector(-548.439488, 1771.65, 0), App.Vector(-142.039488, 1771.65, 0)), False)
sketch9.addGeometry(Part.LineSegment(App.Vector(-142.039488, 1771.65, 0), App.Vector(-142.039488, 1790.7, 0)), False)
sketch9.addGeometry(Part.LineSegment(App.Vector(-142.039488, 1790.7, 0), App.Vector(-548.439488, 1790.7, 0)), False)
sketch9.addConstraint(Sketcher.Constraint("Coincident", 0, 2, 1, 1))
sketch9.addConstraint(Sketcher.Constraint("Coincident", 1, 2, 2, 1))
sketch9.addConstraint(Sketcher.Constraint("Coincident", 2, 2, 3, 1))
sketch9.addConstraint(Sketcher.Constraint("Coincident", 3, 2, 0, 1))
sketch9.addConstraint(Sketcher.Constraint("Coincident", 4, 2, 5, 1))
sketch9.addConstraint(Sketcher.Constraint("Coincident", 5, 2, 6, 1))
sketch9.addConstraint(Sketcher.Constraint("Coincident", 6, 2, 7, 1))
sketch9.addConstraint(Sketcher.Constraint("Coincident", 7, 2, 4, 1))
sketch9.addConstraint(Sketcher.Constraint("Vertical", 0))
sketch9.addConstraint(Sketcher.Constraint("Horizontal", 1))
sketch9.addConstraint(Sketcher.Constraint("Vertical", 2))
sketch9.addConstraint(Sketcher.Constraint("Horizontal", 3))
sketch9.addConstraint(Sketcher.Constraint("Vertical", 4))
sketch9.addConstraint(Sketcher.Constraint("Horizontal", 5))
sketch9.addConstraint(Sketcher.Constraint("Vertical", 6))
sketch9.addConstraint(Sketcher.Constraint("Horizontal", 7))
sketch9.addConstraint(Sketcher.Constraint("Vertical", 3, 2, 4, 2))
sketch9.addConstraint(Sketcher.Constraint("Vertical", 2, 2, 5, 2))
sketch9.addConstraint(Sketcher.Constraint("Equal", 2, 4))
sketch9.addConstraint(Sketcher.Constraint("DistanceX", 1, 1, 1, 2, Q("16 in")))
sketch9.addConstraint(Sketcher.Constraint("DistanceY", 0, 2, 4, 2, Q("15 in")))
sketch9.addConstraint(Sketcher.Constraint("DistanceY", 0, 2, 0, 1, Q("0.75 in")))
sketch9.addConstraint(Sketcher.Constraint("DistanceY", -1, 1, 2, 2, Q("55.5 in")))
sketch9.addConstraint(Sketcher.Constraint("DistanceX", 0, 2, -1, 1, 548.439488))
pad8 = body.newObject("PartDesign::Pad", "Pad007")
pad8.Profile = sketch9
pad8.Length = Q("14 in")

# Sketch on XZ plane
sketch10 = body.newObject("Sketcher::SketchObject", "Sketch009")
sketch10.AttachmentSupport = (doc.getObject("XZ_Plane"), [""])
sketch10.MapMode = "FlatFace"
sketch10.AttachmentOffset = App.Placement(App.Vector(0, 0, 15 * 25.4), App.Rotation())
sketch10.addGeometry(Part.LineSegment(App.Vector(-1094.539488, 2095.5, 0), App.Vector(-1094.539488, 1428.75, 0)), False)
sketch10.addGeometry(Part.LineSegment(App.Vector(-1094.539488, 1428.75, 0), App.Vector(-561.139488, 1428.75, 0)), False)
sketch10.addGeometry(Part.LineSegment(App.Vector(-561.139488, 1428.75, 0), App.Vector(-561.139488, 2095.5, 0)), False)
sketch10.addGeometry(Part.LineSegment(App.Vector(-561.139488, 2095.5, 0), App.Vector(-1094.539488, 2095.5, 0)), False)
sketch10.addGeometry(Part.LineSegment(App.Vector(-129.339488, 2095.5, 0), App.Vector(-129.339488, 1428.75, 0)), False)
sketch10.addGeometry(Part.LineSegment(App.Vector(-129.339488, 1428.75, 0), App.Vector(404.060512, 1428.75, 0)), False)
sketch10.addGeometry(Part.LineSegment(App.Vector(404.060512, 1428.75, 0), App.Vector(404.060512, 2095.5, 0)), False)
sketch10.addGeometry(Part.LineSegment(App.Vector(404.060512, 2095.5, 0), App.Vector(-129.339488, 2095.5, 0)), False)
sketch10.addConstraint(Sketcher.Constraint("Coincident", 0, 2, 1, 1))
sketch10.addConstraint(Sketcher.Constraint("Coincident", 1, 2, 2, 1))
sketch10.addConstraint(Sketcher.Constraint("Coincident", 2, 2, 3, 1))
sketch10.addConstraint(Sketcher.Constraint("Coincident", 3, 2, 0, 1))
sketch10.addConstraint(Sketcher.Constraint("Coincident", 4, 2, 5, 1))
sketch10.addConstraint(Sketcher.Constraint("Coincident", 5, 2, 6, 1))
sketch10.addConstraint(Sketcher.Constraint("Coincident", 6, 2, 7, 1))
sketch10.addConstraint(Sketcher.Constraint("Coincident", 7, 2, 4, 1))
sketch10.addConstraint(Sketcher.Constraint("Vertical", 0))
sketch10.addConstraint(Sketcher.Constraint("Horizontal", 1))
sketch10.addConstraint(Sketcher.Constraint("Vertical", 2))
sketch10.addConstraint(Sketcher.Constraint("Horizontal", 3))
sketch10.addConstraint(Sketcher.Constraint("Vertical", 4))
sketch10.addConstraint(Sketcher.Constraint("Horizontal", 5))
sketch10.addConstraint(Sketcher.Constraint("Vertical", 6))
sketch10.addConstraint(Sketcher.Constraint("Horizontal", 7))
sketch10.addConstraint(Sketcher.Constraint("Horizontal", 1, 2, 4, 2))
sketch10.addConstraint(Sketcher.Constraint("Horizontal", 3, 2, 6, 2))
sketch10.addConstraint(Sketcher.Constraint("Equal", 3, 5))
sketch10.addConstraint(Sketcher.Constraint("DistanceX", 1, 1, 1, 2, Q("21 in")))
sketch10.addConstraint(Sketcher.Constraint("DistanceX", 1, 2, 4, 2, Q("17 in")))
sketch10.addConstraint(Sketcher.Constraint("DistanceY", 0, 2, 0, 1, Q("26.25 in")))
sketch10.addConstraint(Sketcher.Constraint("DistanceY", -1, 1, 2, 2, Q("82.5 in")))
sketch10.addConstraint(Sketcher.Constraint("DistanceX", 0, 2, -1, 1, 1094.539488))
pad9 = body.newObject("PartDesign::Pad", "Pad008")
pad9.Profile = sketch10
pad9.Length = Q("1 in")

# Sketch on XZ plane
sketch11 = body.newObject("Sketcher::SketchObject", "Sketch010")
sketch11.AttachmentSupport = (doc.getObject("XZ_Plane"), [""])
sketch11.MapMode = "FlatFace"
sketch11.AttachmentOffset = App.Placement(App.Vector(0, 0, 16 * 25.4), App.Rotation())
sketch11.addGeometry(Part.LineSegment(App.Vector(-1018.339488, 2019.3, 0), App.Vector(-1018.339488, 1504.95, 0)), False)
sketch11.addGeometry(Part.LineSegment(App.Vector(-1018.339488, 1504.95, 0), App.Vector(-637.339488, 1504.95, 0)), False)
sketch11.addGeometry(Part.LineSegment(App.Vector(-637.339488, 1504.95, 0), App.Vector(-637.339488, 2019.3, 0)), False)
sketch11.addGeometry(Part.LineSegment(App.Vector(-637.339488, 2019.3, 0), App.Vector(-1018.339488, 2019.3, 0)), False)
sketch11.addGeometry(Part.LineSegment(App.Vector(-53.139488, 2019.3, 0), App.Vector(-53.139488, 1504.95, 0)), False)
sketch11.addGeometry(Part.LineSegment(App.Vector(-53.139488, 1504.95, 0), App.Vector(327.860512, 1504.95, 0)), False)
sketch11.addGeometry(Part.LineSegment(App.Vector(327.860512, 1504.95, 0), App.Vector(327.860512, 2019.3, 0)), False)
sketch11.addGeometry(Part.LineSegment(App.Vector(327.860512, 2019.3, 0), App.Vector(-53.139488, 2019.3, 0)), False)
sketch11.addConstraint(Sketcher.Constraint("Coincident", 0, 2, 1, 1))
sketch11.addConstraint(Sketcher.Constraint("Coincident", 1, 2, 2, 1))
sketch11.addConstraint(Sketcher.Constraint("Coincident", 2, 2, 3, 1))
sketch11.addConstraint(Sketcher.Constraint("Coincident", 3, 2, 0, 1))
sketch11.addConstraint(Sketcher.Constraint("Coincident", 4, 2, 5, 1))
sketch11.addConstraint(Sketcher.Constraint("Coincident", 5, 2, 6, 1))
sketch11.addConstraint(Sketcher.Constraint("Coincident", 6, 2, 7, 1))
sketch11.addConstraint(Sketcher.Constraint("Coincident", 7, 2, 4, 1))
sketch11.addConstraint(Sketcher.Constraint("Vertical", 0))
sketch11.addConstraint(Sketcher.Constraint("Horizontal", 1))
sketch11.addConstraint(Sketcher.Constraint("Vertical", 2))
sketch11.addConstraint(Sketcher.Constraint("Horizontal", 3))
sketch11.addConstraint(Sketcher.Constraint("Vertical", 4))
sketch11.addConstraint(Sketcher.Constraint("Horizontal", 5))
sketch11.addConstraint(Sketcher.Constraint("Vertical", 6))
sketch11.addConstraint(Sketcher.Constraint("Horizontal", 7))
sketch11.addConstraint(Sketcher.Constraint("Horizontal", 1, 2, 4, 2))
sketch11.addConstraint(Sketcher.Constraint("Horizontal", 3, 2, 6, 2))
sketch11.addConstraint(Sketcher.Constraint("Equal", 3, 5))
sketch11.addConstraint(Sketcher.Constraint("DistanceX", 1, 1, 1, 2, Q("15 in")))
sketch11.addConstraint(Sketcher.Constraint("DistanceX", 1, 2, 4, 2, Q("23 in")))
sketch11.addConstraint(Sketcher.Constraint("DistanceY", 0, 2, 0, 1, Q("20.25 in")))
sketch11.addConstraint(Sketcher.Constraint("DistanceY", -1, 1, 2, 2, Q("79.5 in")))
sketch11.addConstraint(Sketcher.Constraint("DistanceX", 0, 2, -1, 1, 1018.339488))
pocket2 = body.newObject("PartDesign::Pocket", "Pocket001")
pocket2.Profile = sketch11
pocket2.Length = Q("0.5 in")
doc.recompute()

chamfer3 = body.newObject("PartDesign::Chamfer", "Chamfer002")
chamfer3.Base = (pocket2, edges_at(pocket2, [
    (-827.839, -406.4, 2019.3),
    (-637.339, -406.4, 1762.125),
    (-827.839, -406.4, 1504.95),
    (-1018.339, -406.4, 1762.125),
    (137.361, -406.4, 1504.95),
    (137.361, -406.4, 2019.3),
    (327.861, -406.4, 1762.125),
    (-53.139, -406.4, 1762.125),
    (-129.339, -406.4, 1762.125),
    (137.361, -406.4, 1428.75),
    (404.061, -406.4, 1762.125),
    (137.361, -406.4, 2095.5),
    (-827.839, -406.4, 2095.5),
    (-561.139, -406.4, 1762.125),
    (-827.839, -406.4, 1428.75),
    (-1094.539, -406.4, 1762.125),
]))
chamfer3.Size = Q("0.25 in")

# Sketch on YZ plane
sketch12 = body.newObject("Sketcher::SketchObject", "Sketch011")
sketch12.AttachmentSupport = (doc.getObject("YZ_Plane"), [""])
sketch12.MapMode = "FlatFace"
sketch12.AttachmentOffset = App.Placement(App.Vector(0, 0, 442.160512), App.Rotation())
sketch12.addGeometry(Part.LineSegment(App.Vector(-361.95, 2133.6, 0), App.Vector(-361.95, 1390.65, 0)), False)
sketch12.addGeometry(Part.LineSegment(App.Vector(-361.95, 1390.65, 0), App.Vector(0, 1390.65, 0)), False)
sketch12.addGeometry(Part.LineSegment(App.Vector(0, 1390.65, 0), App.Vector(0, 2133.6, 0)), False)
sketch12.addGeometry(Part.LineSegment(App.Vector(0, 2133.6, 0), App.Vector(-361.95, 2133.6, 0)), False)
sketch12.addConstraint(Sketcher.Constraint("Coincident", 0, 2, 1, 1))
sketch12.addConstraint(Sketcher.Constraint("Coincident", 1, 2, 2, 1))
sketch12.addConstraint(Sketcher.Constraint("Coincident", 2, 2, 3, 1))
sketch12.addConstraint(Sketcher.Constraint("Coincident", 3, 2, 0, 1))
sketch12.addConstraint(Sketcher.Constraint("Vertical", 0))
sketch12.addConstraint(Sketcher.Constraint("Horizontal", 1))
sketch12.addConstraint(Sketcher.Constraint("Vertical", 2))
sketch12.addConstraint(Sketcher.Constraint("Horizontal", 3))
sketch12.addConstraint(Sketcher.Constraint("PointOnObject", 1, 2, -2))
sketch12.addConstraint(Sketcher.Constraint("DistanceY", -1, 1, 2, 2, Q("84 in")))
sketch12.addConstraint(Sketcher.Constraint("DistanceX", 1, 1, 1, 2, Q("14.25 in")))
sketch12.addConstraint(Sketcher.Constraint("DistanceY", 0, 2, 0, 1, Q("29.25 in")))
pocket3 = body.newObject("PartDesign::Pocket", "Pocket002")
pocket3.Profile = sketch12
pocket3.Length = Q("0.25 in")

# Sketch on YZ plane
sketch13 = body.newObject("Sketcher::SketchObject", "Sketch012")
sketch13.AttachmentSupport = (doc.getObject("YZ_Plane"), [""])
sketch13.MapMode = "FlatFace"
sketch13.AttachmentOffset = App.Placement(App.Vector(0, 0, -548.439488), App.Rotation())
sketch13.addGeometry(Part.LineSegment(App.Vector(-361.95, 2133.6, 0), App.Vector(-361.95, 1390.553713, 0)), False)
sketch13.addGeometry(Part.LineSegment(App.Vector(-361.95, 1390.553713, 0), App.Vector(0, 1390.553713, 0)), False)
sketch13.addGeometry(Part.LineSegment(App.Vector(0, 1390.553713, 0), App.Vector(0, 2133.6, 0)), False)
sketch13.addGeometry(Part.LineSegment(App.Vector(0, 2133.6, 0), App.Vector(-361.95, 2133.6, 0)), False)
sketch13.addConstraint(Sketcher.Constraint("Coincident", 0, 2, 1, 1))
sketch13.addConstraint(Sketcher.Constraint("Coincident", 1, 2, 2, 1))
sketch13.addConstraint(Sketcher.Constraint("Coincident", 2, 2, 3, 1))
sketch13.addConstraint(Sketcher.Constraint("Coincident", 3, 2, 0, 1))
sketch13.addConstraint(Sketcher.Constraint("Vertical", 0))
sketch13.addConstraint(Sketcher.Constraint("Horizontal", 1))
sketch13.addConstraint(Sketcher.Constraint("Vertical", 2))
sketch13.addConstraint(Sketcher.Constraint("Horizontal", 3))
sketch13.addConstraint(Sketcher.Constraint("PointOnObject", 1, 2, -2))
sketch13.addConstraint(Sketcher.Constraint("DistanceY", -1, 1, 2, 2, Q("84 in")))
sketch13.addConstraint(Sketcher.Constraint("DistanceX", 1, 1, 1, 2, Q("14.25 in")))
sketch13.addConstraint(Sketcher.Constraint("DistanceY", 0, 2, 0, 1, 743.046287))
pocket4 = body.newObject("PartDesign::Pocket", "Pocket003")
pocket4.Profile = sketch13
pocket4.Length = Q("0.25 in")

# Sketch on XY plane
sketch14 = body.newObject("Sketcher::SketchObject", "Sketch013")
sketch14.AttachmentSupport = (doc.getObject("XY_Plane"), [""])
sketch14.MapMode = "FlatFace"
sketch14.AttachmentOffset = App.Placement(App.Vector(0, 0, 84 * 25.4), App.Rotation())
sketch14.addGeometry(Part.LineSegment(App.Vector(-142.039488, 0, 0), App.Vector(-142.039488, -361.138284, 0)), False)
sketch14.addGeometry(Part.LineSegment(App.Vector(-142.039488, -361.138284, 0), App.Vector(-135.689488, -361.138284, 0)), False)
sketch14.addGeometry(Part.LineSegment(App.Vector(-135.689488, -361.138284, 0), App.Vector(-135.689488, 0, 0)), False)
sketch14.addGeometry(Part.LineSegment(App.Vector(-135.689488, 0, 0), App.Vector(-142.039488, 0, 0)), False)
sketch14.addConstraint(Sketcher.Constraint("Coincident", 0, 2, 1, 1))
sketch14.addConstraint(Sketcher.Constraint("Coincident", 1, 2, 2, 1))
sketch14.addConstraint(Sketcher.Constraint("Coincident", 2, 2, 3, 1))
sketch14.addConstraint(Sketcher.Constraint("Coincident", 3, 2, 0, 1))
sketch14.addConstraint(Sketcher.Constraint("Vertical", 0))
sketch14.addConstraint(Sketcher.Constraint("Horizontal", 1))
sketch14.addConstraint(Sketcher.Constraint("Vertical", 2))
sketch14.addConstraint(Sketcher.Constraint("Horizontal", 3))
sketch14.addConstraint(Sketcher.Constraint("PointOnObject", 2, 2, -1))
sketch14.addConstraint(Sketcher.Constraint("DistanceX", 1, 1, 1, 2, Q("0.25 in")))
sketch14.addConstraint(Sketcher.Constraint("DistanceY", 0, 2, 0, 1, 361.138284))
sketch14.addConstraint(Sketcher.Constraint("DistanceX", 0, 2, -1, 1, 142.039488))
pocket5 = body.newObject("PartDesign::Pocket", "Pocket004")
pocket5.Profile = sketch14
pocket5.Length = Q("30 in")

# Sketch on XY plane
sketch15 = body.newObject("Sketcher::SketchObject", "Sketch014")
sketch15.AttachmentSupport = (doc.getObject("XY_Plane"), [""])
sketch15.MapMode = "FlatFace"
sketch15.AttachmentOffset = App.Placement(App.Vector(0, 0, 84 * 25.4), App.Rotation())
sketch15.addGeometry(Part.LineSegment(App.Vector(-529.389488, 0, 0), App.Vector(-554.789488, 0, 0)), False)
sketch15.addGeometry(Part.LineSegment(App.Vector(-554.789488, 0, 0), App.Vector(-554.789488, -381, 0)), False)
sketch15.addGeometry(Part.LineSegment(App.Vector(-554.789488, -381, 0), App.Vector(-523.039488, -381, 0)), False)
sketch15.addGeometry(Part.LineSegment(App.Vector(-523.039488, -381, 0), App.Vector(-523.039488, -361.95, 0)), False)
sketch15.addGeometry(Part.LineSegment(App.Vector(-523.039488, -361.95, 0), App.Vector(-529.389488, -361.95, 0)), False)
sketch15.addGeometry(Part.LineSegment(App.Vector(-529.389488, -361.95, 0), App.Vector(-529.389488, 0, 0)), False)
sketch15.addGeometry(Part.LineSegment(App.Vector(-135.689488, -381, 0), App.Vector(-135.689488, 0, 0)), False)
sketch15.addGeometry(Part.LineSegment(App.Vector(-135.689488, 0, 0), App.Vector(-161.089488, 0, 0)), False)
sketch15.addGeometry(Part.LineSegment(App.Vector(-161.089488, 0, 0), App.Vector(-161.089488, -361.138284, 0)), False)
sketch15.addGeometry(Part.LineSegment(App.Vector(-161.089488, -361.138284, 0), App.Vector(-167.439488, -361.138284, 0)), False)
sketch15.addGeometry(Part.LineSegment(App.Vector(-167.439488, -361.138284, 0), App.Vector(-167.439488, -381, 0)), False)
sketch15.addGeometry(Part.LineSegment(App.Vector(-167.439488, -381, 0), App.Vector(-135.689488, -381, 0)), False)
sketch15.addConstraint(Sketcher.Constraint("Coincident", 0, 2, 1, 1))
sketch15.addConstraint(Sketcher.Constraint("Coincident", 1, 2, 2, 1))
sketch15.addConstraint(Sketcher.Constraint("Coincident", 2, 2, 3, 1))
sketch15.addConstraint(Sketcher.Constraint("Coincident", 3, 2, 4, 1))
sketch15.addConstraint(Sketcher.Constraint("Coincident", 4, 2, 5, 1))
sketch15.addConstraint(Sketcher.Constraint("Coincident", 5, 2, 0, 1))
sketch15.addConstraint(Sketcher.Constraint("Coincident", 6, 2, 7, 1))
sketch15.addConstraint(Sketcher.Constraint("Coincident", 7, 2, 8, 1))
sketch15.addConstraint(Sketcher.Constraint("Coincident", 8, 2, 9, 1))
sketch15.addConstraint(Sketcher.Constraint("Coincident", 9, 2, 10, 1))
sketch15.addConstraint(Sketcher.Constraint("Coincident", 10, 2, 11, 1))
sketch15.addConstraint(Sketcher.Constraint("Coincident", 11, 2, 6, 1))
sketch15.addConstraint(Sketcher.Constraint("Horizontal", 0))
sketch15.addConstraint(Sketcher.Constraint("Vertical", 1))
sketch15.addConstraint(Sketcher.Constraint("Horizontal", 2))
sketch15.addConstraint(Sketcher.Constraint("Vertical", 3))
sketch15.addConstraint(Sketcher.Constraint("Horizontal", 4))
sketch15.addConstraint(Sketcher.Constraint("Vertical", 5))
sketch15.addConstraint(Sketcher.Constraint("Vertical", 6))
sketch15.addConstraint(Sketcher.Constraint("Horizontal", 7))
sketch15.addConstraint(Sketcher.Constraint("Vertical", 8))
sketch15.addConstraint(Sketcher.Constraint("Horizontal", 9))
sketch15.addConstraint(Sketcher.Constraint("Vertical", 10))
sketch15.addConstraint(Sketcher.Constraint("Horizontal", 11))
sketch15.addConstraint(Sketcher.Constraint("PointOnObject", 0, 2, -1))
sketch15.addConstraint(Sketcher.Constraint("PointOnObject", 6, 2, -1))
sketch15.addConstraint(Sketcher.Constraint("Horizontal", 2, 2, 10, 2))
sketch15.addConstraint(Sketcher.Constraint("Equal", 0, 7))
sketch15.addConstraint(Sketcher.Constraint("Equal", 4, 9))
sketch15.addConstraint(Sketcher.Constraint("DistanceX", 0, 2, 0, 1, Q("1 in")))
sketch15.addConstraint(Sketcher.Constraint("DistanceY", 1, 2, 1, 1, Q("15 in")))
sketch15.addConstraint(Sketcher.Constraint("DistanceX", 3, 2, 9, 2, Q("14 in")))
sketch15.addConstraint(Sketcher.Constraint("DistanceX", 2, 1, 2, 2, Q("1.25 in")))
sketch15.addConstraint(Sketcher.Constraint("DistanceY", 3, 1, 3, 2, Q("0.75 in")))
sketch15.addConstraint(Sketcher.Constraint("DistanceY", 8, 2, 8, 1, 361.138284))
sketch15.addConstraint(Sketcher.Constraint("DistanceX", 0, 2, -1, 1, 554.789488))
pad10 = body.newObject("PartDesign::Pad", "Pad009")
pad10.Profile = sketch15
pad10.Type = "UpToLast"
pad10.Reversed = True
doc.recompute()

boolean2 = body2.newObject("PartDesign::Boolean", "Boolean001")
boolean2.Type = "Cut"
boolean2.addObjects([body4])
body6 = doc.addObject("PartDesign::Body", "Body005")

# Sketch on YZ plane
sketch16 = body6.newObject("Sketcher::SketchObject", "Sketch015")
sketch16.AttachmentSupport = (doc.getObject("YZ_Plane005"), [""])
sketch16.MapMode = "FlatFace"
sketch16.AttachmentOffset = App.Placement(App.Vector(0, 0, 423.110512), App.Rotation())
sketch16.addGeometry(Part.LineSegment(App.Vector(-495.3, 101.6, 0), App.Vector(-495.3, 0, 0)), False)
sketch16.addGeometry(Part.LineSegment(App.Vector(-495.3, 0, 0), App.Vector(-476.25, 0, 0)), False)
sketch16.addGeometry(Part.LineSegment(App.Vector(-476.25, 0, 0), App.Vector(-476.25, 101.6, 0)), False)
sketch16.addGeometry(Part.LineSegment(App.Vector(-476.25, 101.6, 0), App.Vector(-495.3, 101.6, 0)), False)
sketch16.addConstraint(Sketcher.Constraint("Coincident", 0, 2, 1, 1))
sketch16.addConstraint(Sketcher.Constraint("Coincident", 1, 2, 2, 1))
sketch16.addConstraint(Sketcher.Constraint("Coincident", 2, 2, 3, 1))
sketch16.addConstraint(Sketcher.Constraint("Coincident", 3, 2, 0, 1))
sketch16.addConstraint(Sketcher.Constraint("Vertical", 0))
sketch16.addConstraint(Sketcher.Constraint("Horizontal", 1))
sketch16.addConstraint(Sketcher.Constraint("Vertical", 2))
sketch16.addConstraint(Sketcher.Constraint("Horizontal", 3))
sketch16.addConstraint(Sketcher.Constraint("PointOnObject", 0, 2, -1))
sketch16.addConstraint(Sketcher.Constraint("DistanceY", 0, 2, 0, 1, Q("4 in")))
sketch16.addConstraint(Sketcher.Constraint("DistanceX", 1, 1, 1, 2, Q("0.75 in")))
sketch16.addConstraint(Sketcher.Constraint("DistanceX", 0, 2, -1, 1, Q("19.5 in")))
pad11 = body6.newObject("PartDesign::Pad", "Pad010")
pad11.Profile = sketch16
pad11.Length = Q("61.25 in")
pad11.Reversed = True

doc.recompute()
